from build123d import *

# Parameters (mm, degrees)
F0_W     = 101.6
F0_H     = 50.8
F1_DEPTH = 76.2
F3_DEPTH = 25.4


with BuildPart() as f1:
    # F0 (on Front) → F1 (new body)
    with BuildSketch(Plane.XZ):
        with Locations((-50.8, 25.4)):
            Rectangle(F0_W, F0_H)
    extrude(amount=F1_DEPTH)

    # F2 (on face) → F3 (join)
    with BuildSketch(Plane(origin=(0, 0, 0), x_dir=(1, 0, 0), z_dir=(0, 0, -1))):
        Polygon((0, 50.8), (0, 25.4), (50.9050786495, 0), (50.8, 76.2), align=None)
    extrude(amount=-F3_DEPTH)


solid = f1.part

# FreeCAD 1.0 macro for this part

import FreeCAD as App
import Part
import Sketcher

V = App.Vector
Q = App.Units.Quantity

doc = App.newDocument("Part")
body = doc.addObject("PartDesign::Body", "Body")

# Sketch on XZ plane
sketch1 = body.newObject("Sketcher::SketchObject", "Sketch")
sketch1.AttachmentSupport = (doc.getObject("XZ_Plane"), [""])
sketch1.MapMode = "FlatFace"
sketch1.addGeometry([
    Part.LineSegment(V(-102, 51, 0), V(-102, 0, 0)),
    Part.LineSegment(V(-102, 0, 0), V(0, 0, 0)),
    Part.LineSegment(V(0, 0, 0), V(0, 51, 0)),
    Part.LineSegment(V(0, 51, 0), V(-102, 51, 0)),
], False)
sketch1.addConstraint([
    Sketcher.Constraint("Coincident", 0, 2, 1, 1),
    Sketcher.Constraint("Coincident", 1, 2, 2, 1),
    Sketcher.Constraint("Coincident", 2, 2, 3, 1),
    Sketcher.Constraint("Coincident", 3, 2, 0, 1),
    Sketcher.Constraint("Vertical", 0),
    Sketcher.Constraint("Horizontal", 1),
    Sketcher.Constraint("Vertical", 2),
    Sketcher.Constraint("Horizontal", 3),
    Sketcher.Constraint("Coincident", 1, 2, -1, 1),
    Sketcher.Constraint("DistanceX", 1, 1, 1, 2, Q("4 in")),
    Sketcher.Constraint("DistanceY", 0, 2, 0, 1, Q("2 in")),
])
pad1 = body.newObject("PartDesign::Pad", "Pad")
pad1.Profile = sketch1
pad1.Length = Q("3 in")

# Sketch on XY plane
sketch2 = body.newObject("Sketcher::SketchObject", "Sketch001")
sketch2.AttachmentSupport = (doc.getObject("XY_Plane"), [""])
sketch2.MapMode = "FlatFace"
sketch2.addGeometry([
    Part.LineSegment(V(0, -51, 0), V(0, -25, 0)),
    Part.LineSegment(V(0, -25, 0), V(51, 0, 0)),
    Part.LineSegment(V(51, 0, 0), V(51, -76, 0)),
    Part.LineSegment(V(51, -76, 0), V(0, -51, 0)),
], False)
sketch2.addConstraint([
    Sketcher.Constraint("Coincident", 0, 2, 1, 1),
    Sketcher.Constraint("Coincident", 1, 2, 2, 1),
    Sketcher.Constraint("Coincident", 2, 2, 3, 1),
    Sketcher.Constraint("Coincident", 3, 2, 0, 1),
    Sketcher.Constraint("Vertical", 0),
    Sketcher.Constraint("PointOnObject", 0, 2, -2),
    Sketcher.Constraint("PointOnObject", 1, 2, -1),
    Sketcher.Constraint("DistanceY", 0, 1, 0, 2, Q("1 in")),
    Sketcher.Constraint("DistanceY", 0, 2, -1, 1, Q("1 in")),
    Sketcher.Constraint("DistanceX", -1, 1, 2, 2, Q("2 in")),
    Sketcher.Constraint("DistanceY", 2, 2, -1, 1, Q("3 in")),
    Sketcher.Constraint("Distance", 1, Q("56.890131 mm")),
])
pad2 = body.newObject("PartDesign::Pad", "Pad001")
pad2.Profile = sketch2
pad2.Length = Q("1 in")

doc.recompute()
